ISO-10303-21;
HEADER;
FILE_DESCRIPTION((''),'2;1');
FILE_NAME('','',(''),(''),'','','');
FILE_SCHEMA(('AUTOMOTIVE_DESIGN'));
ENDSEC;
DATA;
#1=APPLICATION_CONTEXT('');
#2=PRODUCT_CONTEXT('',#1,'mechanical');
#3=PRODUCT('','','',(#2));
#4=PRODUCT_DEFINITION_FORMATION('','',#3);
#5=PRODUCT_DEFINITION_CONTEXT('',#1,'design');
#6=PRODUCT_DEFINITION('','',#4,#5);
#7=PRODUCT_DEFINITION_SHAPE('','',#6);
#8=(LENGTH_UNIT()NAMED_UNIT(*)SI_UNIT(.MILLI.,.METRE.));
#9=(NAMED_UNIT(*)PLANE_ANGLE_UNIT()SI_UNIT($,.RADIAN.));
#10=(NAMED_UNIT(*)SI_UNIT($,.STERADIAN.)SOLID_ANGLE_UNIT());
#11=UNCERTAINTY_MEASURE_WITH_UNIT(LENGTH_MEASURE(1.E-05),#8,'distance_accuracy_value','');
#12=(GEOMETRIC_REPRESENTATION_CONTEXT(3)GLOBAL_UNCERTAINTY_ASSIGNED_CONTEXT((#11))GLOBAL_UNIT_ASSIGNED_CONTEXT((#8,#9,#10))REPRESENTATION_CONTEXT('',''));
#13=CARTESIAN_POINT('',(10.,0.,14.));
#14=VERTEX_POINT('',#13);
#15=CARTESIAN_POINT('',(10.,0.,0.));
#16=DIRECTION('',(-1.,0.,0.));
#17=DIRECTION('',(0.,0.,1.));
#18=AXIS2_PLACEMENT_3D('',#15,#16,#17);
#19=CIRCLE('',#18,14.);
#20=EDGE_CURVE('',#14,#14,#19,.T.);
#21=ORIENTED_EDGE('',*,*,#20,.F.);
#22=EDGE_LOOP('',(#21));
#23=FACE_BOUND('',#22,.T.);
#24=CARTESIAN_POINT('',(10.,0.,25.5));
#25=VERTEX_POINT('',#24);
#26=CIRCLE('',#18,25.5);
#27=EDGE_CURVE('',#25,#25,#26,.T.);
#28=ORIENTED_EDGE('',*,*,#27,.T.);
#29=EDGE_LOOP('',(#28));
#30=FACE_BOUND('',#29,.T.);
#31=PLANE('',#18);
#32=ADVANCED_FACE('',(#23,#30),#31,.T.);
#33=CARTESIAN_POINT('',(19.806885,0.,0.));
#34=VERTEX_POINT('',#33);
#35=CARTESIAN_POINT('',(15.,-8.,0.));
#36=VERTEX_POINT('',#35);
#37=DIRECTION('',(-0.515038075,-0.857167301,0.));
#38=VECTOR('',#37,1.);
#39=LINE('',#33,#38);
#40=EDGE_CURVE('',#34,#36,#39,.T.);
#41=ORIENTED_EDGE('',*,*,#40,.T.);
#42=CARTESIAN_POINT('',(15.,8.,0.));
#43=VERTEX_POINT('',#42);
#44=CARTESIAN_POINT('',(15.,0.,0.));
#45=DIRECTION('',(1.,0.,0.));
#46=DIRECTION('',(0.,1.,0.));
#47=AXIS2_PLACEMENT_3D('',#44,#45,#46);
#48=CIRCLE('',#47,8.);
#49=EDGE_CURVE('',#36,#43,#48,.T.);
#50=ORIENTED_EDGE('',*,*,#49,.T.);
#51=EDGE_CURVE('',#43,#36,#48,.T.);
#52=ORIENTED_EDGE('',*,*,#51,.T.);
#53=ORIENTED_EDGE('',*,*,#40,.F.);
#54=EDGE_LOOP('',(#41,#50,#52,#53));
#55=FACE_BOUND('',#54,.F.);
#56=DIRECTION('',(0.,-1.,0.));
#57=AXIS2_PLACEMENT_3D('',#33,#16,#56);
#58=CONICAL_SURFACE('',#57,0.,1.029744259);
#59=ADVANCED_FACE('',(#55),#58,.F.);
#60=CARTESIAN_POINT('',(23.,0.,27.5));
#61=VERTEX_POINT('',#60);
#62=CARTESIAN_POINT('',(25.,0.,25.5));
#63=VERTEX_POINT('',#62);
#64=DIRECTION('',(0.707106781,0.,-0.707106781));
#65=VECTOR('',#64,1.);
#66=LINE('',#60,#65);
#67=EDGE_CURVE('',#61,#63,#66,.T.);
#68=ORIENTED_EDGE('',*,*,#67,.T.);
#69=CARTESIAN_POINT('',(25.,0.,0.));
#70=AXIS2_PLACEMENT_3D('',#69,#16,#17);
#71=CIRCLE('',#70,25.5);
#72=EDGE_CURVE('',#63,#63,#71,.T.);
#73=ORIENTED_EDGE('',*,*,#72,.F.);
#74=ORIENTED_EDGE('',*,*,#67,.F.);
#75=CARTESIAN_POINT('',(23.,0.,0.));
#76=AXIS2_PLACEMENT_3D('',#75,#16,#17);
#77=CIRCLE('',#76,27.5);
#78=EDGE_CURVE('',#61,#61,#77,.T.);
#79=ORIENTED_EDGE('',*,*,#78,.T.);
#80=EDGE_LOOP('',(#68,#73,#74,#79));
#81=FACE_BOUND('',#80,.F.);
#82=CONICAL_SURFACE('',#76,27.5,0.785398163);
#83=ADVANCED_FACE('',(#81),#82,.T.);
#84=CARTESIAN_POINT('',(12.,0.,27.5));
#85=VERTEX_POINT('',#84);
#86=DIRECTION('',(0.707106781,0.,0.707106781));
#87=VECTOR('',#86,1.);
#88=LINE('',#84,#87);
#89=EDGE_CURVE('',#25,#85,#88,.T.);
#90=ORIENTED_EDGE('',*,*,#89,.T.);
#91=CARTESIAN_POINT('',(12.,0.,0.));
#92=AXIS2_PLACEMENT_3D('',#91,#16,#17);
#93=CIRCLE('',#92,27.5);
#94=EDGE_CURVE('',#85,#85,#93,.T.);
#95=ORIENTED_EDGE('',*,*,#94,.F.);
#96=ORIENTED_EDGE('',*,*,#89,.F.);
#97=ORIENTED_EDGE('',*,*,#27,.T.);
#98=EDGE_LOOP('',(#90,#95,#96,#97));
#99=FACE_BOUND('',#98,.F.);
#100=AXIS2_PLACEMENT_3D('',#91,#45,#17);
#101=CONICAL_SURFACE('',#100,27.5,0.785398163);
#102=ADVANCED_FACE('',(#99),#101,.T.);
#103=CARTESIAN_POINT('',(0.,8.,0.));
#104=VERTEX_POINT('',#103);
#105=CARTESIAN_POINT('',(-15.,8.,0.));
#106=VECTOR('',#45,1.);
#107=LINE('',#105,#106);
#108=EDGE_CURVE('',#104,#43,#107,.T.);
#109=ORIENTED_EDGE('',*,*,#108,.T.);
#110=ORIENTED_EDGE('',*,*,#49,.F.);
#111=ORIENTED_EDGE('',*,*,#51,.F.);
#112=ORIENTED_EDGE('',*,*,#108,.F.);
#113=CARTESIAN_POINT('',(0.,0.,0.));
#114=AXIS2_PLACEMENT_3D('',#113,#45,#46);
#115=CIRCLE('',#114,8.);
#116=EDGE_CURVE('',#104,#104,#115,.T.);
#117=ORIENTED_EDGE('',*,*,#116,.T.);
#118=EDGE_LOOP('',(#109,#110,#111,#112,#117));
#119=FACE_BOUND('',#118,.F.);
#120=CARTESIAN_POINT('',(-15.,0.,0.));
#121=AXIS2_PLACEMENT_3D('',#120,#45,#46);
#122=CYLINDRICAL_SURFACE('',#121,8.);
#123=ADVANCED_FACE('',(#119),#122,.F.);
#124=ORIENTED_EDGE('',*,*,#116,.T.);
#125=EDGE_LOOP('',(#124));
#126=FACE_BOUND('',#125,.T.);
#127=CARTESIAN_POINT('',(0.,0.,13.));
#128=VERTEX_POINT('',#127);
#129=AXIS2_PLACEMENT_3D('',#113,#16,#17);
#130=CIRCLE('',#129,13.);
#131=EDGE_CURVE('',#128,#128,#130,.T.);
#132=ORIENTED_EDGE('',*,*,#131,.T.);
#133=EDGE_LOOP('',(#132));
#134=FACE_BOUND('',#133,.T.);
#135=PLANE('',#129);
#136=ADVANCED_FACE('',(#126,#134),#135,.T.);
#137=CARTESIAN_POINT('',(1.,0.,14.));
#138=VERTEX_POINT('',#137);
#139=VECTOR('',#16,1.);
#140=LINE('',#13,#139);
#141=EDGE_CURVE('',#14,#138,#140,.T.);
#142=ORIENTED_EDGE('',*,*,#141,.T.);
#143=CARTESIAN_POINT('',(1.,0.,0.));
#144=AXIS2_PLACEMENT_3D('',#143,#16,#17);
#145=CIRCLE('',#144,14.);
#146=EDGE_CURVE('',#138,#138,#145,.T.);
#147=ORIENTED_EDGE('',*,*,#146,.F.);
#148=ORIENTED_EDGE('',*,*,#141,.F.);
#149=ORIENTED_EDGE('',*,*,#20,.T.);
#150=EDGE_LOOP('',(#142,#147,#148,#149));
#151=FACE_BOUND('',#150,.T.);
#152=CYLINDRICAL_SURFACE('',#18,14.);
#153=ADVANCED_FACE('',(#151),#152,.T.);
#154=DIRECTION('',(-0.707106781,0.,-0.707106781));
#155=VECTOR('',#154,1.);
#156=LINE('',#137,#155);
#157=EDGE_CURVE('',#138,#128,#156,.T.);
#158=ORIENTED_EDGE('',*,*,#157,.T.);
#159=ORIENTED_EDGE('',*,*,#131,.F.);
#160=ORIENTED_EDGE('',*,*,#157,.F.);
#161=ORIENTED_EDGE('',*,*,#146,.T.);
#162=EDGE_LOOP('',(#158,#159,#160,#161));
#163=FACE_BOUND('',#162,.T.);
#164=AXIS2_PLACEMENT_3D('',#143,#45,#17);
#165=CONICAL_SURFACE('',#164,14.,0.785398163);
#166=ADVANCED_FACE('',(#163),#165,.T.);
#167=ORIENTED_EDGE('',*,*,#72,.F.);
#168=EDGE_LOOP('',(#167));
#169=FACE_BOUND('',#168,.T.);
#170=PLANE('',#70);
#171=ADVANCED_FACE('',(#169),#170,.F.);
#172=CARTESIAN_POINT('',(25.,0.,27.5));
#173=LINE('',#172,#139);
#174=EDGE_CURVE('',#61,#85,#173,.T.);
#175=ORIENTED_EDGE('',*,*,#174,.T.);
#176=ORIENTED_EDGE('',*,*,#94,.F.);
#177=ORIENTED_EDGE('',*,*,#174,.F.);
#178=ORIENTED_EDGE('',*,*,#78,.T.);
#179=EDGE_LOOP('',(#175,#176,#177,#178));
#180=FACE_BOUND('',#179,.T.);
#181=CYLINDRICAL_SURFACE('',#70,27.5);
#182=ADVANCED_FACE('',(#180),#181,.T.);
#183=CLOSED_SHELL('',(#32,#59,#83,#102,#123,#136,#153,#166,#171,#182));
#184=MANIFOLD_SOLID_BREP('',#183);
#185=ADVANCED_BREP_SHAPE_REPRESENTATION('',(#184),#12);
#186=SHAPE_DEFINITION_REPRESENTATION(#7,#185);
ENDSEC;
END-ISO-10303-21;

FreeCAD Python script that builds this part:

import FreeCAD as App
import Part
import Sketcher
from FreeCAD import Vector
Q = App.Units.Quantity


def edges_at(feature, points):
    """Names of the edges that pass closest to the given points."""
    edges = feature.Shape.Edges
    near = lambda p: min(range(len(edges)), key=lambda i: edges[i].distToShape(Part.Vertex(*p))[0])
    return sorted({f"Edge{near(p) + 1}" for p in points})


def add_polygon(sketch, points):
    """Adds a closed chain of lines whose ends are joined by coincident constraints."""
    first, n = sketch.GeometryCount, len(points)
    for a, b in zip(points, points[1:] + points[:1]):
        sketch.addGeometry(Part.LineSegment(App.Vector(*a, 0), App.Vector(*b, 0)), False)
    for i in range(n):
        sketch.addConstraint(Sketcher.Constraint("Coincident", first + i, 2, first + (i + 1) % n, 1))

doc = App.newDocument("Part")
body = doc.addObject("PartDesign::Body", "Body")

# Sketch on XZ plane
sketch1 = doc.addObject("Sketcher::SketchObject", "Sketch")
body.addObject(sketch1)
sketch1.AttachmentSupport = (doc.XZ_Plane, [""])
sketch1.MapMode = "FlatFace"
add_polygon(sketch1, [(0, 14), (0, 0), (25, 0), (25, 28), (10, 28), (10, 14)])  # lines 0-5
sketch1.addConstraint(Sketcher.Constraint("Vertical", 0))
sketch1.addConstraint(Sketcher.Constraint("Horizontal", 1))
sketch1.addConstraint(Sketcher.Constraint("Vertical", 2))
sketch1.addConstraint(Sketcher.Constraint("Horizontal", 3))
sketch1.addConstraint(Sketcher.Constraint("Vertical", 4))
sketch1.addConstraint(Sketcher.Constraint("Horizontal", 5))
sketch1.addConstraint(Sketcher.Constraint("Coincident", 0, 2, -1, 1))
sketch1.addConstraint(Sketcher.Constraint("DistanceX", 1, 1, 1, 2, Q("25 mm")))
sketch1.addConstraint(Sketcher.Constraint("DistanceX", 3, 2, 3, 1, Q("15 mm")))
sketch1.addConstraint(Sketcher.Constraint("DistanceY", 0, 2, 0, 1, Q("14 mm")))
sketch1.addConstraint(Sketcher.Constraint("DistanceY", 2, 1, 2, 2, Q("27.5 mm")))
revolution = doc.addObject("PartDesign::Revolution", "Revolution")
body.addObject(revolution)
revolution.Profile = sketch1
revolution.ReferenceAxis = (sketch1, ["H_Axis"])
revolution.Angle = 360

# Sketch on YZ plane
sketch2 = doc.addObject("Sketcher::SketchObject", "Sketch001")
body.addObject(sketch2)
sketch2.AttachmentSupport = (doc.YZ_Plane, [""])
sketch2.MapMode = "FlatFace"
sketch2.addGeometry(Part.Circle(Vector(0, 0, 0), Vector(0, 0, 1), 8), False)
sketch2.addConstraint(Sketcher.Constraint("Coincident", 0, 3, -1, 1))
sketch2.addConstraint(Sketcher.Constraint("Diameter", 0, Q("16 mm")))
doc.recompute()
hole = doc.addObject("PartDesign::Hole", "Hole")
body.addObject(hole)
hole.Profile = sketch2
hole.ThreadType = "None"
hole.Diameter = 16
hole.DepthType = "Dimension"
hole.Depth = 15
hole.DrillPoint = "Angled"
hole.DrillPointAngle = 118
hole.Reversed = True
doc.recompute()

chamfer = doc.addObject("PartDesign::Chamfer", "Chamfer")
body.addObject(chamfer)
chamfer.Base = (hole, edges_at(hole, [(25, 0, -27.5), (10, 0, -27.5), (17.5, 0, 27.5)]))
chamfer.Size = 2
doc.recompute()

chamfer2 = doc.addObject("PartDesign::Chamfer", "Chamfer001")
body.addObject(chamfer2)
chamfer2.Base = (chamfer, edges_at(chamfer, [(0, 0, -14)]))
chamfer2.Size = 1

doc.recompute()
